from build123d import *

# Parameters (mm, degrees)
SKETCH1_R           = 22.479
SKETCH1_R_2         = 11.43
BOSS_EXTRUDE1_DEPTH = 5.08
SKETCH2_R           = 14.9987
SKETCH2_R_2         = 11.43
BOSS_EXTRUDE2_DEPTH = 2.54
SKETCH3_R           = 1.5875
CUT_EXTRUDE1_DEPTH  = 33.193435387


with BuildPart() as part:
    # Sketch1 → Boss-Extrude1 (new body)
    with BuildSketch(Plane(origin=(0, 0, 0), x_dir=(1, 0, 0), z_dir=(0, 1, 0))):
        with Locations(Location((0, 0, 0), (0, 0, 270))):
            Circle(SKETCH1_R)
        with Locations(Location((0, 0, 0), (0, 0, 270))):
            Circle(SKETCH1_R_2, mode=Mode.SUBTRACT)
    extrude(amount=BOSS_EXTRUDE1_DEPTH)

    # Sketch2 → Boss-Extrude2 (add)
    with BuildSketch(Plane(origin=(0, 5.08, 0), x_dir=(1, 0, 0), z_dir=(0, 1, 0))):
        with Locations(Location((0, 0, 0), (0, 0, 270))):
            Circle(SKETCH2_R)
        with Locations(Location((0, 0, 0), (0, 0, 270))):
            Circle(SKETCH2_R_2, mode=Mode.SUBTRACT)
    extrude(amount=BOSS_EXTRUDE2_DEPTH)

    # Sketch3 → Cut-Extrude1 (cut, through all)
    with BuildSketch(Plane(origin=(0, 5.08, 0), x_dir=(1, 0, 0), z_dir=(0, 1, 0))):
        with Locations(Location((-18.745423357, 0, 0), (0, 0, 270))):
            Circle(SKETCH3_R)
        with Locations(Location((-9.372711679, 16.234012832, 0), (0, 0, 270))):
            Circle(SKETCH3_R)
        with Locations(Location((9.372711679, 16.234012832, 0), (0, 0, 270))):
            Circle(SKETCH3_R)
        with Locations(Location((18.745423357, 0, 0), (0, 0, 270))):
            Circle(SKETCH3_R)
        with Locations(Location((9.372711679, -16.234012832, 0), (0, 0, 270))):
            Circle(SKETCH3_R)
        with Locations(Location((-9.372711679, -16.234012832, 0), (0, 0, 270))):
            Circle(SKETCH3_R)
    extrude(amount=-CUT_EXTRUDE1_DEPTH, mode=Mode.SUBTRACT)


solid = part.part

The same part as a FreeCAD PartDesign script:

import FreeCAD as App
import Part
import Sketcher

V = App.Vector
Q = App.Units.Quantity

doc = App.newDocument("Part")
params = doc.addObject("Spreadsheet::Sheet", "Params")
for row, (alias, value) in enumerate([
    ("sketch1_diameter", "0.9 in"),
    ("sketch1_diameter2", "1.77 in"),
    ("pad1_length", "0.2 in"),
    ("sketch2_diameter", "0.9 in"),
    ("sketch2_diameter2", "1.181 in"),
    ("pad2_length", "0.1 in"),
    ("sketch3_diameter", "0.125 in"),
], start=1):
    params.set(f"A{row}", alias)
    params.set(f"B{row}", "=" + value)
    params.setAlias(f"B{row}", alias)

body = doc.addObject("PartDesign::Body", "Body")

sketch1 = doc.addObject("Sketcher::SketchObject", "Sketch")
body.addObject(sketch1)
sketch1.AttachmentSupport = (doc.XZ_Plane, [""])
sketch1.MapMode = "FlatFace"
sketch1.addGeometry([
    Part.Circle(V(0, 0, 0), V(0, 0, 1), 22),
    Part.Circle(V(0, 0, 0), V(0, 0, 1), 11),
], False)
sketch1.addConstraint([
    Sketcher.Constraint("Coincident", 0, 3, -1, 1),
    Sketcher.Constraint("Coincident", 1, 3, -1, 1),
    Sketcher.Constraint("Diameter", 1, Q("0.9 in")),
    Sketcher.Constraint("Diameter", 0, Q("1.77 in")),
])
sketch1.setExpression("Constraints[2]", "Params.sketch1_diameter")
sketch1.setExpression("Constraints[3]", "Params.sketch1_diameter2")
pad1 = doc.addObject("PartDesign::Pad", "Pad")
body.addObject(pad1)
pad1.Profile = sketch1
pad1.setExpression("Length", "Params.pad1_length")
pad1.Reversed = True

sketch2 = doc.addObject("Sketcher::SketchObject", "Sketch001")
body.addObject(sketch2)
sketch2.AttachmentSupport = (doc.XZ_Plane, [""])
sketch2.MapMode = "FlatFace"
sketch2.AttachmentOffset = App.Placement(V(0, 0, -0.2 * 25.4), App.Rotation())
sketch2.addGeometry([
    Part.Circle(V(0, 0, 0), V(0, 0, 1), 15),
    Part.Circle(V(0, 0, 0), V(0, 0, 1), 11),
], False)
sketch2.addConstraint([
    Sketcher.Constraint("Coincident", 0, 3, -1, 1),
    Sketcher.Constraint("Coincident", 1, 3, -1, 1),
    Sketcher.Constraint("Diameter", 1, Q("0.9 in")),
    Sketcher.Constraint("Diameter", 0, Q("1.181 in")),
])
sketch2.setExpression("Constraints[2]", "Params.sketch2_diameter")
sketch2.setExpression("Constraints[3]", "Params.sketch2_diameter2")
pad2 = doc.addObject("PartDesign::Pad", "Pad001")
body.addObject(pad2)
pad2.Profile = sketch2
pad2.setExpression("Length", "Params.pad2_length")
pad2.Reversed = True

sketch3 = doc.addObject("Sketcher::SketchObject", "Sketch002")
body.addObject(sketch3)
sketch3.AttachmentSupport = (doc.XZ_Plane, [""])
sketch3.MapMode = "FlatFace"
sketch3.AttachmentOffset = App.Placement(V(0, 0, -0.2 * 25.4), App.Rotation())
sketch3.addGeometry([
    Part.Circle(V(-18.7, 0, 0), V(0, 0, 1), 1.6),
    Part.Circle(V(-9.4, -16.2, 0), V(0, 0, 1), 1.6),
    Part.Circle(V(9.4, -16.2, 0), V(0, 0, 1), 1.6),
    Part.Circle(V(18.7, 0, 0), V(0, 0, 1), 1.6),
    Part.Circle(V(9.4, 16.2, 0), V(0, 0, 1), 1.6),
    Part.Circle(V(-9.4, 16.2, 0), V(0, 0, 1), 1.6),
], False)
sketch3.addConstraint([
    Sketcher.Constraint("Equal", 0, 1),
    Sketcher.Constraint("Equal", 1, 2),
    Sketcher.Constraint("Equal", 2, 3),
    Sketcher.Constraint("Equal", 3, 4),
    Sketcher.Constraint("Equal", 4, 5),
    Sketcher.Constraint("Symmetric", 0, 3, 3, 3, -1, 1),
    Sketcher.Constraint("Symmetric", 1, 3, 4, 3, -1, 1),
    Sketcher.Constraint("Symmetric", 2, 3, 5, 3, -1, 1),
    Sketcher.Constraint("Symmetric", 1, 3, 2, 3, -2),
    Sketcher.Constraint("PointOnObject", 0, 3, -1),
    Sketcher.Constraint("Diameter", 0, Q("0.125 in")),
    Sketcher.Constraint("DistanceX", 1, 3, -1, 1, 9.372712),
    Sketcher.Constraint("DistanceX", 0, 3, 1, 3, 9.372712),
    Sketcher.Constraint("DistanceY", 1, 3, -1, 1, 16.234013),
])
sketch3.setExpression("Constraints[10]", "Params.sketch3_diameter")
pocket1 = doc.addObject("PartDesign::Pocket", "Pocket")
body.addObject(pocket1)
pocket1.Profile = sketch3
pocket1.Type = "ThroughAll"
pocket1.Reversed = True

doc.recompute()
